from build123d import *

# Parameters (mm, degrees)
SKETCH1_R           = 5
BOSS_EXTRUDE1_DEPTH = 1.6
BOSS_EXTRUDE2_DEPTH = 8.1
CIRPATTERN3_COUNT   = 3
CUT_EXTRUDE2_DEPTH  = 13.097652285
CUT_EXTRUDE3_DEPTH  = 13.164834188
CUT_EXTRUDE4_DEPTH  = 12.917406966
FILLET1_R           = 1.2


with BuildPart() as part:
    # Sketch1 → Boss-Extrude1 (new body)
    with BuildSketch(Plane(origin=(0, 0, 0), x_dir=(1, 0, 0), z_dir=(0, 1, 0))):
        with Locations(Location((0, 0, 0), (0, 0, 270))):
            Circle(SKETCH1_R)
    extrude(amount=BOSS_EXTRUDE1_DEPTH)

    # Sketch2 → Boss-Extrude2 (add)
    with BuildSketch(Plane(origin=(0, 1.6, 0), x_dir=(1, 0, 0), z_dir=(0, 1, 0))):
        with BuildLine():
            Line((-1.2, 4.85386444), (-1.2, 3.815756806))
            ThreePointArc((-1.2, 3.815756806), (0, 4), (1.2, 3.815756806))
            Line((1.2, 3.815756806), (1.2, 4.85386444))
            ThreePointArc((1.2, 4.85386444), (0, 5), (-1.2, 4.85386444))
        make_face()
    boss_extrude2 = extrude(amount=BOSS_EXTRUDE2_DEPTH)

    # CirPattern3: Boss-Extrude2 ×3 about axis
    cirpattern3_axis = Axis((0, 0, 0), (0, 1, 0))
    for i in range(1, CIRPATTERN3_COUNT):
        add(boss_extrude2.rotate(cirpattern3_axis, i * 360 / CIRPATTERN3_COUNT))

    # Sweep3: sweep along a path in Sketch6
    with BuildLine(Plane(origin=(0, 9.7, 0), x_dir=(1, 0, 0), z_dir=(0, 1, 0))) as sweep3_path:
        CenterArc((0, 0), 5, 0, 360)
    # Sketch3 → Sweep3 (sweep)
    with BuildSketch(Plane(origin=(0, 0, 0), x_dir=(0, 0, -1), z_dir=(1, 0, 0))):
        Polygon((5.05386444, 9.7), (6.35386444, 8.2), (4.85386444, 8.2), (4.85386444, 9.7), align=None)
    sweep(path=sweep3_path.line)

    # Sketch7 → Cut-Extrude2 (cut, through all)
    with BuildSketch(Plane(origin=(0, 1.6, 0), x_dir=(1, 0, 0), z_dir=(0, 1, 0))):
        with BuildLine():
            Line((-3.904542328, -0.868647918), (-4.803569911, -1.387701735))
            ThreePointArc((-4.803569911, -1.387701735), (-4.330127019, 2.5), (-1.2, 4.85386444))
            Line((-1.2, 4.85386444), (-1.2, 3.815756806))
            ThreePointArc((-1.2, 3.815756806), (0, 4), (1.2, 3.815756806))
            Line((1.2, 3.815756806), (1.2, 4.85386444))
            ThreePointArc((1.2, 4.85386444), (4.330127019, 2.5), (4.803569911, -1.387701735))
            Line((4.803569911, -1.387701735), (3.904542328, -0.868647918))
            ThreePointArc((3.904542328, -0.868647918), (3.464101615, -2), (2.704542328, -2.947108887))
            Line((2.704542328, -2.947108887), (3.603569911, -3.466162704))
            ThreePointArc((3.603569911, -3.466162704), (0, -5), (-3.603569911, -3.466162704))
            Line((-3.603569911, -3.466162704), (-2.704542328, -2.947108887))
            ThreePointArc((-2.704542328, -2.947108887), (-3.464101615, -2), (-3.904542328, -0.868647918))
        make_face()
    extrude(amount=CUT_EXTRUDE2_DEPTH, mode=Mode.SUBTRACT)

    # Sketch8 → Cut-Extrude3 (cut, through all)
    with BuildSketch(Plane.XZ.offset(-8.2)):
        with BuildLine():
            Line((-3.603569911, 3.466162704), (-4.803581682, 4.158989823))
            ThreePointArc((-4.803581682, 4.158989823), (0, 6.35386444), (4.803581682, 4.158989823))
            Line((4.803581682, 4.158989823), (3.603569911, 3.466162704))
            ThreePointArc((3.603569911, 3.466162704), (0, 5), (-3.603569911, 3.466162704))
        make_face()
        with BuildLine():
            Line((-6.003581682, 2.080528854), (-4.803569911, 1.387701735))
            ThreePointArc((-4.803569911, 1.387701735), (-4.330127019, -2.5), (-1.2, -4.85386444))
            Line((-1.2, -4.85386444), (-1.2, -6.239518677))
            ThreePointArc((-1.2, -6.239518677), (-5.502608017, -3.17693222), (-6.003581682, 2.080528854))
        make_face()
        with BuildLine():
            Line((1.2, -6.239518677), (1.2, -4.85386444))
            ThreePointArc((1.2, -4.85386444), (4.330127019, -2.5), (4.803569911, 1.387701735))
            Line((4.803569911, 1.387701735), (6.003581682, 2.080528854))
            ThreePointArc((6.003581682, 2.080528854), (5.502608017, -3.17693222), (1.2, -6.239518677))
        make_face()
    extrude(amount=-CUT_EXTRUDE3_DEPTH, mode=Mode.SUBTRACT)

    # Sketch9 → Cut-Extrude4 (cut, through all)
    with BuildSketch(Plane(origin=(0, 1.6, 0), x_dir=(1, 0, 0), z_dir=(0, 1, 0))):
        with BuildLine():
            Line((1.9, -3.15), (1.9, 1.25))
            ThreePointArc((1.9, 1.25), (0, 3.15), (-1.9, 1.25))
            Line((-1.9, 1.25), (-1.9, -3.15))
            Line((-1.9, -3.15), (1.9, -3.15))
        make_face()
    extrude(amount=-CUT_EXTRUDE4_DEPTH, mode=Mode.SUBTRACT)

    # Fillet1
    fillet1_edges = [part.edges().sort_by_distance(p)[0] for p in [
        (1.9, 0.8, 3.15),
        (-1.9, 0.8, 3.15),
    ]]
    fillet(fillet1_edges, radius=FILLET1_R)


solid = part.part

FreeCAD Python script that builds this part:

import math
import FreeCAD as App
import Part
import Sketcher
Q = App.Units.Quantity


def edges_at(feature, points):
    """Names of the edges that pass closest to the given points."""
    edges = feature.Shape.Edges
    near = lambda p: min(range(len(edges)), key=lambda i: edges[i].distToShape(Part.Vertex(*p))[0])
    return sorted({f"Edge{near(p) + 1}" for p in points})


def add_polygon(sketch, points):
    """Adds a closed chain of lines whose ends are joined by coincident constraints."""
    first, n = sketch.GeometryCount, len(points)
    for a, b in zip(points, points[1:] + points[:1]):
        sketch.addGeometry(Part.LineSegment(App.Vector(*a, 0), App.Vector(*b, 0)), False)
    for i in range(n):
        sketch.addConstraint(Sketcher.Constraint("Coincident", first + i, 2, first + (i + 1) % n, 1))

doc = App.newDocument("Part")
body = doc.addObject("PartDesign::Body", "Body")

# Sketch on XZ plane
sketch1 = body.newObject("Sketcher::SketchObject", "Sketch")
sketch1.AttachmentSupport = (doc.getObject("XZ_Plane"), [""])
sketch1.MapMode = "FlatFace"
sketch1.addGeometry(Part.Circle(App.Vector(0, 0, 0), App.Vector(0, 0, 1), 5), False)
sketch1.addConstraint([
    Sketcher.Constraint("Coincident", 0, 3, -1, 1),
    Sketcher.Constraint("Diameter", 0, Q("10 mm")),
])
pad1 = body.newObject("PartDesign::Pad", "Pad")
pad1.Profile = sketch1
pad1.Length = 1.6
pad1.Reversed = True

# Sketch on XZ plane
sketch2 = body.newObject("Sketcher::SketchObject", "Sketch001")
sketch2.AttachmentSupport = (doc.getObject("XZ_Plane"), [""])
sketch2.MapMode = "FlatFace"
sketch2.AttachmentOffset = App.Placement(App.Vector(0, 0, -1.6), App.Rotation())
sketch2.addGeometry([
    Part.LineSegment(App.Vector(-1.2, -4.853864, 0), App.Vector(-1.2, -3.815757, 0)),
    Part.ArcOfCircle(Part.Circle(App.Vector(0, 0, 0), App.Vector(0, 0, 1), 4), math.radians(-107.457603), math.radians(-72.542397)),
    Part.LineSegment(App.Vector(1.2, -3.815757, 0), App.Vector(1.2, -4.853864, 0)),
    Part.ArcOfCircle(Part.Circle(App.Vector(0, 0, 0), App.Vector(0, 0, 1), 5), math.radians(-103.88654), math.radians(-76.11346)),
], False)
sketch2.addConstraint([
    Sketcher.Constraint("Coincident", 0, 2, 1, 1),
    Sketcher.Constraint("Coincident", 1, 2, 2, 1),
    Sketcher.Constraint("Coincident", 2, 2, 3, 2),
    Sketcher.Constraint("Coincident", 3, 1, 0, 1),
    Sketcher.Constraint("Vertical", 0),
    Sketcher.Constraint("Vertical", 2),
    Sketcher.Constraint("Coincident", 1, 3, -1, 1),
    Sketcher.Constraint("Coincident", 3, 3, -1, 1),
    Sketcher.Constraint("Horizontal", 0, 2, 1, 2),
    Sketcher.Constraint("Radius", 1, Q("4 mm")),
    Sketcher.Constraint("Radius", 3, Q("5 mm")),
    Sketcher.Constraint("DistanceX", 0, 2, -1, 1, Q("1.2 mm")),
])
pad2 = body.newObject("PartDesign::Pad", "Pad001")
pad2.Profile = sketch2
pad2.Length = 8.1
pad2.Reversed = True
doc.recompute()

polarpattern = body.newObject("PartDesign::PolarPattern", "PolarPattern")
polarpattern.Originals = [pad2]
polarpattern.Axis = (doc.getObject("Y_Axis"), [""])
polarpattern.Angle = 360
polarpattern.Occurrences = 3
body.Tip = polarpattern

# Sketch on YZ plane
sketch3 = body.newObject("Sketcher::SketchObject", "Sketch002")
sketch3.AttachmentSupport = (doc.getObject("YZ_Plane"), [""])
sketch3.MapMode = "FlatFace"
add_polygon(sketch3, [(8.2, -6.353864), (9.7, -5.053864), (9.7, -4.853864), (8.2, -4.853864)])  # lines 0-3
sketch3.addConstraint([
    Sketcher.Constraint("Vertical", 1),
    Sketcher.Constraint("Horizontal", 2),
    Sketcher.Constraint("Vertical", 3),
    Sketcher.Constraint("Equal", 2, 3),
    Sketcher.Constraint("DistanceX", 2, 2, 2, 1, Q("1.5 mm")),
    Sketcher.Constraint("DistanceY", 1, 1, 1, 2, Q("0.2 mm")),
    Sketcher.Constraint("DistanceX", -1, 1, 0, 2, Q("9.7 mm")),
    Sketcher.Constraint("DistanceY", 0, 2, -1, 1, Q("5.053864 mm")),
])

# Sketch on XZ plane
sketch4 = body.newObject("Sketcher::SketchObject", "Sketch003")
sketch4.AttachmentSupport = (doc.getObject("XZ_Plane"), [""])
sketch4.MapMode = "FlatFace"
sketch4.AttachmentOffset = App.Placement(App.Vector(0, 0, -9.7), App.Rotation())
sketch4.addGeometry(Part.Circle(App.Vector(0, 0, 0), App.Vector(0, 0, 1), 5), False)
sketch4.addConstraint([
    Sketcher.Constraint("Coincident", 0, 3, -1, 1),
    Sketcher.Constraint("Diameter", 0, Q("10 mm")),
])
doc.recompute()

additivepipe = body.newObject("PartDesign::AdditivePipe", "AdditivePipe")
additivepipe.Profile = sketch3
additivepipe.Spine = (sketch4, ["Edge1"])

# Sketch on XZ plane
sketch5 = body.newObject("Sketcher::SketchObject", "Sketch004")
sketch5.AttachmentSupport = (doc.getObject("XZ_Plane"), [""])
sketch5.MapMode = "FlatFace"
sketch5.AttachmentOffset = App.Placement(App.Vector(0, 0, -1.6), App.Rotation())
sketch5.addGeometry([
    Part.LineSegment(App.Vector(-4.80357, 1.387702, 0), App.Vector(-3.904542, 0.868648, 0)),  # 0
    Part.ArcOfCircle(Part.Circle(App.Vector(0, 0, 0), App.Vector(0, 0, 1), 4), math.radians(132.542397), math.radians(167.457603)),  # 1
    Part.LineSegment(App.Vector(-2.704542, 2.947109, 0), App.Vector(-3.60357, 3.466163, 0)),  # 2
    Part.ArcOfCircle(Part.Circle(App.Vector(0, 0, 0), App.Vector(0, 0, 1), 5), math.radians(43.88654), math.radians(136.11346)),  # 3
    Part.LineSegment(App.Vector(3.60357, 3.466163, 0), App.Vector(2.704542, 2.947109, 0)),  # 4
    Part.ArcOfCircle(Part.Circle(App.Vector(0, 0, 0), App.Vector(0, 0, 1), 4), math.radians(12.542397), math.radians(47.457603)),  # 5
    Part.LineSegment(App.Vector(3.904542, 0.868648, 0), App.Vector(4.80357, 1.387702, 0)),  # 6
    Part.ArcOfCircle(Part.Circle(App.Vector(0, 0, 0), App.Vector(0, 0, 1), 5), math.radians(-76.11346), math.radians(16.11346)),  # 7
    Part.LineSegment(App.Vector(1.2, -4.853864, 0), App.Vector(1.2, -3.815757, 0)),  # 8
    Part.ArcOfCircle(Part.Circle(App.Vector(0, 0, 0), App.Vector(0, 0, 1), 4), math.radians(-107.457603), math.radians(-72.542397)),  # 9
    Part.LineSegment(App.Vector(-1.2, -3.815757, 0), App.Vector(-1.2, -4.853864, 0)),  # 10
    Part.ArcOfCircle(Part.Circle(App.Vector(0, 0, 0), App.Vector(0, 0, 1), 5), math.radians(163.88654), math.radians(256.11346)),  # 11
], False)
sketch5.addConstraint([
    Sketcher.Constraint("Coincident", 0, 2, 1, 2),
    Sketcher.Constraint("Coincident", 1, 1, 2, 1),
    Sketcher.Constraint("Coincident", 2, 2, 3, 2),
    Sketcher.Constraint("Coincident", 3, 1, 4, 1),
    Sketcher.Constraint("Coincident", 4, 2, 5, 2),
    Sketcher.Constraint("Coincident", 5, 1, 6, 1),
    Sketcher.Constraint("Coincident", 6, 2, 7, 2),
    Sketcher.Constraint("Coincident", 7, 1, 8, 1),
    Sketcher.Constraint("Coincident", 8, 2, 9, 2),
    Sketcher.Constraint("Coincident", 9, 1, 10, 1),
    Sketcher.Constraint("Coincident", 10, 2, 11, 2),
    Sketcher.Constraint("Coincident", 11, 1, 0, 1),
    Sketcher.Constraint("Vertical", 8),
    Sketcher.Constraint("Vertical", 10),
    Sketcher.Constraint("Coincident", 1, 3, -1, 1),
    Sketcher.Constraint("Coincident", 3, 3, -1, 1),
    Sketcher.Constraint("Coincident", 5, 3, -1, 1),
    Sketcher.Constraint("Coincident", 7, 3, -1, 1),
    Sketcher.Constraint("Coincident", 9, 3, -1, 1),
    Sketcher.Constraint("Coincident", 11, 3, -1, 1),
    Sketcher.Constraint("Equal", 1, 5),
    Sketcher.Constraint("Equal", 3, 7),
    Sketcher.Constraint("Equal", 5, 9),
    Sketcher.Constraint("Equal", 7, 11),
    Sketcher.Constraint("Parallel", 0, 2),
    Sketcher.Constraint("Parallel", 4, 6),
    Sketcher.Constraint("Horizontal", 2, 2, 3, 1),
    Sketcher.Constraint("Horizontal", 1, 1, 4, 2),
    Sketcher.Constraint("Horizontal", 0, 2, 5, 1),
    Sketcher.Constraint("Horizontal", 8, 2, 9, 1),
    Sketcher.Constraint("Equal", 0, 2),
    Sketcher.Constraint("Radius", 1, Q("4 mm")),
    Sketcher.Constraint("Radius", 3, Q("5 mm")),
    Sketcher.Constraint("Angle", 0, Q("-30 deg")),
    Sketcher.Constraint("DistanceX", -1, 1, 7, 1, Q("1.2 mm")),
    Sketcher.Constraint("DistanceX", 0, 2, 1, 1, Q("1.2 mm")),
])
pocket1 = body.newObject("PartDesign::Pocket", "Pocket")
pocket1.Profile = sketch5
pocket1.Type = "ThroughAll"

# Sketch on XZ plane
sketch6 = body.newObject("Sketcher::SketchObject", "Sketch005")
sketch6.AttachmentSupport = (doc.getObject("XZ_Plane"), [""])
sketch6.MapMode = "FlatFace"
sketch6.AttachmentOffset = App.Placement(App.Vector(0, 0, -8.2), App.Rotation())
sketch6.addGeometry([
    Part.LineSegment(App.Vector(-4.803582, 4.15899, 0), App.Vector(-3.60357, 3.466163, 0)),  # 0
    Part.ArcOfCircle(Part.Circle(App.Vector(0, 0, 0), App.Vector(0, 0, 1), 5), math.radians(43.88654), math.radians(136.11346)),  # 1
    Part.LineSegment(App.Vector(3.60357, 3.466163, 0), App.Vector(4.803582, 4.15899, 0)),  # 2
    Part.ArcOfCircle(Part.Circle(App.Vector(0, 0, 0), App.Vector(0, 0, 1), 6.353864), math.radians(40.886347), math.radians(139.113653)),  # 3
    Part.LineSegment(App.Vector(-4.80357, 1.387702, 0), App.Vector(-6.003582, 2.080529, 0)),  # 4
    Part.ArcOfCircle(Part.Circle(App.Vector(0, 0, 0), App.Vector(0, 0, 1), 6.353864), math.radians(160.886347), math.radians(259.113653)),  # 5
    Part.LineSegment(App.Vector(-1.2, -6.239519, 0), App.Vector(-1.2, -4.853864, 0)),  # 6
    Part.ArcOfCircle(Part.Circle(App.Vector(0, 0, 0), App.Vector(0, 0, 1), 5), math.radians(163.88654), math.radians(256.11346)),  # 7
    Part.LineSegment(App.Vector(1.2, -4.853864, 0), App.Vector(1.2, -6.239519, 0)),  # 8
    Part.ArcOfCircle(Part.Circle(App.Vector(0, 0, 0), App.Vector(0, 0, 1), 6.353864), math.radians(-79.113653), math.radians(19.113653)),  # 9
    Part.LineSegment(App.Vector(6.003582, 2.080529, 0), App.Vector(4.80357, 1.387702, 0)),  # 10
    Part.ArcOfCircle(Part.Circle(App.Vector(0, 0, 0), App.Vector(0, 0, 1), 5), math.radians(-76.11346), math.radians(16.11346)),  # 11
], False)
sketch6.addConstraint([
    Sketcher.Constraint("Coincident", 0, 2, 1, 2),
    Sketcher.Constraint("Coincident", 1, 1, 2, 1),
    Sketcher.Constraint("Coincident", 2, 2, 3, 1),
    Sketcher.Constraint("Coincident", 3, 2, 0, 1),
    Sketcher.Constraint("Coincident", 4, 2, 5, 1),
    Sketcher.Constraint("Coincident", 5, 2, 6, 1),
    Sketcher.Constraint("Coincident", 6, 2, 7, 2),
    Sketcher.Constraint("Coincident", 7, 1, 4, 1),
    Sketcher.Constraint("Coincident", 8, 2, 9, 1),
    Sketcher.Constraint("Coincident", 9, 2, 10, 1),
    Sketcher.Constraint("Coincident", 10, 2, 11, 2),
    Sketcher.Constraint("Coincident", 11, 1, 8, 1),
    Sketcher.Constraint("Vertical", 6),
    Sketcher.Constraint("Vertical", 8),
    Sketcher.Constraint("Coincident", 1, 3, -1, 1),
    Sketcher.Constraint("Coincident", 3, 3, -1, 1),
    Sketcher.Constraint("Coincident", 5, 3, -1, 1),
    Sketcher.Constraint("Coincident", 7, 3, -1, 1),
    Sketcher.Constraint("Coincident", 9, 3, -1, 1),
    Sketcher.Constraint("Coincident", 11, 3, -1, 1),
    Sketcher.Constraint("Equal", 3, 5),
    Sketcher.Constraint("Equal", 1, 7),
    Sketcher.Constraint("Equal", 5, 9),
    Sketcher.Constraint("Equal", 7, 11),
    Sketcher.Constraint("Parallel", 0, 4),
    Sketcher.Constraint("Parallel", 2, 10),
    Sketcher.Constraint("Horizontal", 0, 2, 1, 1),
    Sketcher.Constraint("Horizontal", 2, 2, 3, 2),
    Sketcher.Constraint("Horizontal", 5, 2, 8, 2),
    Sketcher.Constraint("Horizontal", 4, 2, 9, 2),
    Sketcher.Constraint("Equal", 2, 4),
    Sketcher.Constraint("Radius", 1, Q("5 mm")),
    Sketcher.Constraint("Angle", 0, Q("-30 deg")),
    Sketcher.Constraint("DistanceX", 5, 2, -1, 1, Q("1.2 mm")),
    Sketcher.Constraint("DistanceX", 4, 2, 3, 2, Q("1.2 mm")),
    Sketcher.Constraint("Radius", 3, Q("6.353864 mm")),
])
pocket2 = body.newObject("PartDesign::Pocket", "Pocket001")
pocket2.Profile = sketch6
pocket2.Type = "ThroughAll"

# Sketch on XZ plane
sketch7 = body.newObject("Sketcher::SketchObject", "Sketch006")
sketch7.AttachmentSupport = (doc.getObject("XZ_Plane"), [""])
sketch7.MapMode = "FlatFace"
sketch7.AttachmentOffset = App.Placement(App.Vector(0, 0, -1.6), App.Rotation())
sketch7.addGeometry([
    Part.LineSegment(App.Vector(1.9, 3.15, 0), App.Vector(1.9, -1.25, 0)),
    Part.ArcOfCircle(Part.Circle(App.Vector(0, -1.25, 0), App.Vector(0, 0, 1), 1.9), math.radians(180), math.radians(360)),
    Part.LineSegment(App.Vector(-1.9, -1.25, 0), App.Vector(-1.9, 3.15, 0)),
    Part.LineSegment(App.Vector(-1.9, 3.15, 0), App.Vector(1.9, 3.15, 0)),
], False)
sketch7.addConstraint([
    Sketcher.Constraint("Tangent", 0, 2, 1, 2),
    Sketcher.Constraint("Tangent", 1, 1, 2, 1),
    Sketcher.Constraint("Coincident", 2, 2, 3, 1),
    Sketcher.Constraint("Coincident", 3, 2, 0, 1),
    Sketcher.Constraint("Vertical", 0),
    Sketcher.Constraint("Vertical", 2),
    Sketcher.Constraint("Horizontal", 3),
    Sketcher.Constraint("PointOnObject", 1, 3, -2),
    Sketcher.Constraint("Radius", 1, Q("1.9 mm")),
    Sketcher.Constraint("DistanceY", 0, 2, 0, 1, Q("4.4 mm")),
    Sketcher.Constraint("DistanceY", 1, 3, -1, 1, Q("1.25 mm")),
])
pocket3 = body.newObject("PartDesign::Pocket", "Pocket002")
pocket3.Profile = sketch7
pocket3.Type = "ThroughAll"
pocket3.Reversed = True
doc.recompute()

fillet = body.newObject("PartDesign::Fillet", "Fillet")
fillet.Base = (pocket3, edges_at(pocket3, [(1.9, 0.8, 3.15), (-1.9, 0.8, 3.15)]))
fillet.Radius = 1.2

doc.recompute()
